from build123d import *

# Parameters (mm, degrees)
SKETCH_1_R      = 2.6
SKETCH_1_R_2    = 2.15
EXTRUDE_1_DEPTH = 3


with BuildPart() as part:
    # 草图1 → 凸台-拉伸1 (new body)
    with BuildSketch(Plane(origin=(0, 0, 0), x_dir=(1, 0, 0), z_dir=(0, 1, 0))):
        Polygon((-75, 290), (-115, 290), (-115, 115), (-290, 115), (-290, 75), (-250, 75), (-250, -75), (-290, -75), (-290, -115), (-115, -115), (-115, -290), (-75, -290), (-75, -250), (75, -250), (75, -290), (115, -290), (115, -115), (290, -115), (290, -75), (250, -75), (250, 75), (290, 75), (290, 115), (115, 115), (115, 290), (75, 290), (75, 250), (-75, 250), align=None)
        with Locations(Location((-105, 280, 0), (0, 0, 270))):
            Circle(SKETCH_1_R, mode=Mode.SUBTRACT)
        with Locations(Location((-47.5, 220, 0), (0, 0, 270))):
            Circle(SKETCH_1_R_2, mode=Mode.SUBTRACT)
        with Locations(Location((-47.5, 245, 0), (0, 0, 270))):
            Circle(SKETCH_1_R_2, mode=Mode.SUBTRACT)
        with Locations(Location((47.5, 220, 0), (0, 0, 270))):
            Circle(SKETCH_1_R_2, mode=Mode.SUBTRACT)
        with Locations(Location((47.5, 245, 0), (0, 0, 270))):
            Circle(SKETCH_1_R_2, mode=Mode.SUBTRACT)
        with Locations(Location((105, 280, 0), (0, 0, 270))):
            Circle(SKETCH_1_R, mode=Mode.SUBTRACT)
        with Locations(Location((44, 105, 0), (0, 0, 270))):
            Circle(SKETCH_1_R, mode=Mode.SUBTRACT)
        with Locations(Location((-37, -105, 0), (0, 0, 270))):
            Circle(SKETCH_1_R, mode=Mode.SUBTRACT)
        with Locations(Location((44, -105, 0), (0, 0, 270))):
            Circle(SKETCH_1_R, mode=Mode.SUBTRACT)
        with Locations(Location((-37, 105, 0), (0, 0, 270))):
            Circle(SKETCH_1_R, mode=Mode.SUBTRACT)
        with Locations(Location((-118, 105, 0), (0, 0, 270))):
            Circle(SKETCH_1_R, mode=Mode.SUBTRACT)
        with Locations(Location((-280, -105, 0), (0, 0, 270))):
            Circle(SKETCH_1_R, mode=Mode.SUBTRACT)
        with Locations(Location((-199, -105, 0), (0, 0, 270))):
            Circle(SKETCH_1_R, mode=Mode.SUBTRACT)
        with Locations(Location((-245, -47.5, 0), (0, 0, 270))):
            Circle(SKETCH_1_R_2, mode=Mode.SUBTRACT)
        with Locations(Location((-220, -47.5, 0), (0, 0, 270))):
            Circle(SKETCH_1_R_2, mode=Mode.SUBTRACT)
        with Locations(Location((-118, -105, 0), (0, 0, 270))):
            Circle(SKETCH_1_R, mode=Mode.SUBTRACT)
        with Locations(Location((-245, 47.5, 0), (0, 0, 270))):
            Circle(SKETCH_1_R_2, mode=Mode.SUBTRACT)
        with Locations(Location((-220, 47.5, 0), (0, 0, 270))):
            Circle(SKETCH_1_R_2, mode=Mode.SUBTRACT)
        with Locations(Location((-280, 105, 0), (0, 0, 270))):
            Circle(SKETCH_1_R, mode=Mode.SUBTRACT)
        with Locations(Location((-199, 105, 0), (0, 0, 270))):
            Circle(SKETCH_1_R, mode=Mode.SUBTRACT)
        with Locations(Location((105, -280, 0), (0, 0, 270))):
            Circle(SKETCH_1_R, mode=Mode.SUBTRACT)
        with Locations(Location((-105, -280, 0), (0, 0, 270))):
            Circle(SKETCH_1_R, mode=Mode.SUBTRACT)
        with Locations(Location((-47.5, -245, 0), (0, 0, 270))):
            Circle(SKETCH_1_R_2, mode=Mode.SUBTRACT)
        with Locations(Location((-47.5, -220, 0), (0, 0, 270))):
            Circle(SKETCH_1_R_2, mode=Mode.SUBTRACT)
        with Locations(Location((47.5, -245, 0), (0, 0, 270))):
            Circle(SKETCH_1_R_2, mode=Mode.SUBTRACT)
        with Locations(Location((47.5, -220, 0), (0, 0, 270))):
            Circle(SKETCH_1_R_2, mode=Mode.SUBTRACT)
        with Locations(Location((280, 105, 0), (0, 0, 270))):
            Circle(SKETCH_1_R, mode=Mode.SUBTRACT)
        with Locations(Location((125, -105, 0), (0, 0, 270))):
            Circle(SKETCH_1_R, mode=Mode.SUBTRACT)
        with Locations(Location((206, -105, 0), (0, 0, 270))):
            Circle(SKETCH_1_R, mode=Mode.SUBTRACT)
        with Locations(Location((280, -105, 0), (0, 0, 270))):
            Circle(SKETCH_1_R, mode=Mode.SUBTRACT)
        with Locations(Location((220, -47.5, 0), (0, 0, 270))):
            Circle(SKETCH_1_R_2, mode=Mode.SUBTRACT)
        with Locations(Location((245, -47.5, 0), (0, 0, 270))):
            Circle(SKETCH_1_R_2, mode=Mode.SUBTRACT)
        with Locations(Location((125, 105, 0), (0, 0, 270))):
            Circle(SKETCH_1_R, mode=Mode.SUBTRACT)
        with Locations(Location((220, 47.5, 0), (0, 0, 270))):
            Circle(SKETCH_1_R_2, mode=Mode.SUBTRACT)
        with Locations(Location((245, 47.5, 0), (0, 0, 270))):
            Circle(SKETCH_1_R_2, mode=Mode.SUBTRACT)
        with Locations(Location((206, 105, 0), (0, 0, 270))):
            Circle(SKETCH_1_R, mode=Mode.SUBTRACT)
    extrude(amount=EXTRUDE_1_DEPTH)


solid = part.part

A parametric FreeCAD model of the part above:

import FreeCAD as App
import Part
import Sketcher


def add_polygon(sketch, points):
    """Adds a closed chain of lines whose ends are joined by coincident constraints."""
    first, n = sketch.GeometryCount, len(points)
    for a, b in zip(points, points[1:] + points[:1]):
        sketch.addGeometry(Part.LineSegment(App.Vector(*a, 0), App.Vector(*b, 0)), False)
    for i in range(n):
        sketch.addConstraint(Sketcher.Constraint("Coincident", first + i, 2, first + (i + 1) % n, 1))

doc = App.newDocument("Part")
body = doc.addObject("PartDesign::Body", "Body")

# Sketch on XZ plane
sketch1 = doc.addObject("Sketcher::SketchObject", "Sketch")
body.addObject(sketch1)
sketch1.AttachmentSupport = (doc.XZ_Plane, [""])
sketch1.MapMode = "FlatFace"
add_polygon(sketch1, [(-75, -290), (-115, -290), (-115, -115), (-290, -115), (-290, -75), (-250, -75), (-250, 75), (-290, 75), (-290, 115), (-115, 115), (-115, 290), (-75, 290), (-75, 250), (75, 250), (75, 290), (115, 290), (115, 115), (290, 115), (290, 75), (250, 75), (250, -75), (290, -75), (290, -115), (115, -115), (115, -290), (75, -290), (75, -250), (-75, -250)])  # lines 0-27
sketch1.addGeometry(Part.Circle(App.Vector(-105, 280, 0), App.Vector(0, 0, 1), 2.6), False)  # 28
sketch1.addGeometry(Part.Circle(App.Vector(-47.5, 245, 0), App.Vector(0, 0, 1), 2.1), False)  # 29
sketch1.addGeometry(Part.Circle(App.Vector(-47.5, 220, 0), App.Vector(0, 0, 1), 2.1), False)  # 30
sketch1.addGeometry(Part.Circle(App.Vector(-280, 105, 0), App.Vector(0, 0, 1), 2.6), False)  # 31
sketch1.addGeometry(Part.Circle(App.Vector(-199, 105, 0), App.Vector(0, 0, 1), 2.6), False)  # 32
sketch1.addGeometry(Part.Circle(App.Vector(-245, 47.5, 0), App.Vector(0, 0, 1), 2.1), False)  # 33
sketch1.addGeometry(Part.Circle(App.Vector(-220, 47.5, 0), App.Vector(0, 0, 1), 2.1), False)  # 34
sketch1.addGeometry(Part.Circle(App.Vector(-118, 105, 0), App.Vector(0, 0, 1), 2.6), False)  # 35
sketch1.addGeometry(Part.Circle(App.Vector(-37, 105, 0), App.Vector(0, 0, 1), 2.6), False)  # 36
sketch1.addGeometry(Part.Circle(App.Vector(47.5, 245, 0), App.Vector(0, 0, 1), 2.1), False)  # 37
sketch1.addGeometry(Part.Circle(App.Vector(47.5, 220, 0), App.Vector(0, 0, 1), 2.1), False)  # 38
sketch1.addGeometry(Part.Circle(App.Vector(105, 280, 0), App.Vector(0, 0, 1), 2.6), False)  # 39
sketch1.addGeometry(Part.Circle(App.Vector(44, 105, 0), App.Vector(0, 0, 1), 2.6), False)  # 40
sketch1.addGeometry(Part.Circle(App.Vector(125, 105, 0), App.Vector(0, 0, 1), 2.6), False)  # 41
sketch1.addGeometry(Part.Circle(App.Vector(206, 105, 0), App.Vector(0, 0, 1), 2.6), False)  # 42
sketch1.addGeometry(Part.Circle(App.Vector(280, 105, 0), App.Vector(0, 0, 1), 2.6), False)  # 43
sketch1.addGeometry(Part.Circle(App.Vector(220, 47.5, 0), App.Vector(0, 0, 1), 2.1), False)  # 44
sketch1.addGeometry(Part.Circle(App.Vector(245, 47.5, 0), App.Vector(0, 0, 1), 2.1), False)  # 45
sketch1.addGeometry(Part.Circle(App.Vector(-245, -47.5, 0), App.Vector(0, 0, 1), 2.1), False)  # 46
sketch1.addGeometry(Part.Circle(App.Vector(-220, -47.5, 0), App.Vector(0, 0, 1), 2.1), False)  # 47
sketch1.addGeometry(Part.Circle(App.Vector(-280, -105, 0), App.Vector(0, 0, 1), 2.6), False)  # 48
sketch1.addGeometry(Part.Circle(App.Vector(-199, -105, 0), App.Vector(0, 0, 1), 2.6), False)  # 49
sketch1.addGeometry(Part.Circle(App.Vector(-118, -105, 0), App.Vector(0, 0, 1), 2.6), False)  # 50
sketch1.addGeometry(Part.Circle(App.Vector(-37, -105, 0), App.Vector(0, 0, 1), 2.6), False)  # 51
sketch1.addGeometry(Part.Circle(App.Vector(-105, -280, 0), App.Vector(0, 0, 1), 2.6), False)  # 52
sketch1.addGeometry(Part.Circle(App.Vector(-47.5, -220, 0), App.Vector(0, 0, 1), 2.1), False)  # 53
sketch1.addGeometry(Part.Circle(App.Vector(-47.5, -245, 0), App.Vector(0, 0, 1), 2.1), False)  # 54
sketch1.addGeometry(Part.Circle(App.Vector(44, -105, 0), App.Vector(0, 0, 1), 2.6), False)  # 55
sketch1.addGeometry(Part.Circle(App.Vector(125, -105, 0), App.Vector(0, 0, 1), 2.6), False)  # 56
sketch1.addGeometry(Part.Circle(App.Vector(220, -47.5, 0), App.Vector(0, 0, 1), 2.1), False)  # 57
sketch1.addGeometry(Part.Circle(App.Vector(245, -47.5, 0), App.Vector(0, 0, 1), 2.1), False)  # 58
sketch1.addGeometry(Part.Circle(App.Vector(206, -105, 0), App.Vector(0, 0, 1), 2.6), False)  # 59
sketch1.addGeometry(Part.Circle(App.Vector(280, -105, 0), App.Vector(0, 0, 1), 2.6), False)  # 60
sketch1.addGeometry(Part.Circle(App.Vector(47.5, -220, 0), App.Vector(0, 0, 1), 2.1), False)  # 61
sketch1.addGeometry(Part.Circle(App.Vector(47.5, -245, 0), App.Vector(0, 0, 1), 2.1), False)  # 62
sketch1.addGeometry(Part.Circle(App.Vector(105, -280, 0), App.Vector(0, 0, 1), 2.6), False)  # 63
sketch1.addConstraint(Sketcher.Constraint("Horizontal", 0))
sketch1.addConstraint(Sketcher.Constraint("Vertical", 1))
sketch1.addConstraint(Sketcher.Constraint("Horizontal", 2))
sketch1.addConstraint(Sketcher.Constraint("Vertical", 3))
sketch1.addConstraint(Sketcher.Constraint("Horizontal", 4))
sketch1.addConstraint(Sketcher.Constraint("Vertical", 5))
sketch1.addConstraint(Sketcher.Constraint("Horizontal", 6))
sketch1.addConstraint(Sketcher.Constraint("Vertical", 7))
sketch1.addConstraint(Sketcher.Constraint("Horizontal", 8))
sketch1.addConstraint(Sketcher.Constraint("Vertical", 9))
sketch1.addConstraint(Sketcher.Constraint("Horizontal", 10))
sketch1.addConstraint(Sketcher.Constraint("Vertical", 11))
sketch1.addConstraint(Sketcher.Constraint("Horizontal", 12))
sketch1.addConstraint(Sketcher.Constraint("Vertical", 13))
sketch1.addConstraint(Sketcher.Constraint("Horizontal", 14))
sketch1.addConstraint(Sketcher.Constraint("Vertical", 15))
sketch1.addConstraint(Sketcher.Constraint("Horizontal", 16))
sketch1.addConstraint(Sketcher.Constraint("Vertical", 17))
sketch1.addConstraint(Sketcher.Constraint("Horizontal", 18))
sketch1.addConstraint(Sketcher.Constraint("Vertical", 19))
sketch1.addConstraint(Sketcher.Constraint("Horizontal", 20))
sketch1.addConstraint(Sketcher.Constraint("Vertical", 21))
sketch1.addConstraint(Sketcher.Constraint("Horizontal", 22))
sketch1.addConstraint(Sketcher.Constraint("Vertical", 23))
sketch1.addConstraint(Sketcher.Constraint("Horizontal", 24))
sketch1.addConstraint(Sketcher.Constraint("Vertical", 25))
sketch1.addConstraint(Sketcher.Constraint("Horizontal", 26))
sketch1.addConstraint(Sketcher.Constraint("Vertical", 27))
sketch1.addConstraint(Sketcher.Constraint("Equal", 29, 30))
sketch1.addConstraint(Sketcher.Constraint("Equal", 28, 31))
sketch1.addConstraint(Sketcher.Constraint("Equal", 31, 32))
sketch1.addConstraint(Sketcher.Constraint("Equal", 30, 33))
sketch1.addConstraint(Sketcher.Constraint("Equal", 33, 34))
sketch1.addConstraint(Sketcher.Constraint("Equal", 32, 35))
sketch1.addConstraint(Sketcher.Constraint("Equal", 35, 36))
sketch1.addConstraint(Sketcher.Constraint("Equal", 34, 37))
sketch1.addConstraint(Sketcher.Constraint("Equal", 37, 38))
sketch1.addConstraint(Sketcher.Constraint("Equal", 36, 39))
sketch1.addConstraint(Sketcher.Constraint("Equal", 39, 40))
sketch1.addConstraint(Sketcher.Constraint("Equal", 40, 41))
sketch1.addConstraint(Sketcher.Constraint("Equal", 41, 42))
sketch1.addConstraint(Sketcher.Constraint("Equal", 42, 43))
sketch1.addConstraint(Sketcher.Constraint("Equal", 38, 44))
sketch1.addConstraint(Sketcher.Constraint("Equal", 44, 45))
sketch1.addConstraint(Sketcher.Constraint("Equal", 45, 46))
sketch1.addConstraint(Sketcher.Constraint("Equal", 46, 47))
sketch1.addConstraint(Sketcher.Constraint("Equal", 43, 48))
sketch1.addConstraint(Sketcher.Constraint("Equal", 48, 49))
sketch1.addConstraint(Sketcher.Constraint("Equal", 49, 50))
sketch1.addConstraint(Sketcher.Constraint("Equal", 50, 51))
sketch1.addConstraint(Sketcher.Constraint("Equal", 51, 52))
sketch1.addConstraint(Sketcher.Constraint("Equal", 47, 53))
sketch1.addConstraint(Sketcher.Constraint("Equal", 53, 54))
sketch1.addConstraint(Sketcher.Constraint("Equal", 52, 55))
sketch1.addConstraint(Sketcher.Constraint("Equal", 55, 56))
sketch1.addConstraint(Sketcher.Constraint("Equal", 54, 57))
sketch1.addConstraint(Sketcher.Constraint("Equal", 57, 58))
sketch1.addConstraint(Sketcher.Constraint("Equal", 56, 59))
sketch1.addConstraint(Sketcher.Constraint("Equal", 59, 60))
sketch1.addConstraint(Sketcher.Constraint("Equal", 58, 61))
sketch1.addConstraint(Sketcher.Constraint("Equal", 61, 62))
sketch1.addConstraint(Sketcher.Constraint("Equal", 60, 63))
sketch1.addConstraint(Sketcher.Constraint("Symmetric", 45, 3, 46, 3, -1, 1))
sketch1.addConstraint(Sketcher.Constraint("Symmetric", 44, 3, 47, 3, -1, 1))
sketch1.addConstraint(Sketcher.Constraint("Symmetric", 43, 3, 48, 3, -1, 1))
sketch1.addConstraint(Sketcher.Constraint("Symmetric", 39, 3, 52, 3, -1, 1))
sketch1.addConstraint(Sketcher.Constraint("Symmetric", 38, 3, 53, 3, -1, 1))
sketch1.addConstraint(Sketcher.Constraint("Symmetric", 37, 3, 54, 3, -1, 1))
sketch1.addConstraint(Sketcher.Constraint("Symmetric", 34, 3, 57, 3, -1, 1))
sketch1.addConstraint(Sketcher.Constraint("Symmetric", 33, 3, 58, 3, -1, 1))
sketch1.addConstraint(Sketcher.Constraint("Symmetric", 31, 3, 60, 3, -1, 1))
sketch1.addConstraint(Sketcher.Constraint("Symmetric", 30, 3, 61, 3, -1, 1))
sketch1.addConstraint(Sketcher.Constraint("Symmetric", 29, 3, 62, 3, -1, 1))
sketch1.addConstraint(Sketcher.Constraint("Symmetric", 28, 3, 63, 3, -1, 1))
sketch1.addConstraint(Sketcher.Constraint("Symmetric", 0, 2, 14, 2, -1, 1))
sketch1.addConstraint(Sketcher.Constraint("Symmetric", 2, 2, 16, 2, -1, 1))
sketch1.addConstraint(Sketcher.Constraint("Symmetric", 4, 2, 18, 2, -1, 1))
sketch1.addConstraint(Sketcher.Constraint("Symmetric", 6, 2, 20, 2, -1, 1))
sketch1.addConstraint(Sketcher.Constraint("Symmetric", 8, 2, 22, 2, -1, 1))
sketch1.addConstraint(Sketcher.Constraint("Symmetric", 10, 2, 24, 2, -1, 1))
sketch1.addConstraint(Sketcher.Constraint("Symmetric", 12, 2, 26, 2, -1, 1))
sketch1.addConstraint(Sketcher.Constraint("Symmetric", 29, 3, 37, 3, -2))
sketch1.addConstraint(Sketcher.Constraint("Symmetric", 30, 3, 38, 3, -2))
sketch1.addConstraint(Sketcher.Constraint("Symmetric", 28, 3, 39, 3, -2))
sketch1.addConstraint(Sketcher.Constraint("Symmetric", 31, 3, 43, 3, -2))
sketch1.addConstraint(Sketcher.Constraint("Symmetric", 34, 3, 44, 3, -2))
sketch1.addConstraint(Sketcher.Constraint("Symmetric", 33, 3, 45, 3, -2))
sketch1.addConstraint(Sketcher.Constraint("Symmetric", 10, 2, 13, 2, -2))
sketch1.addConstraint(Sketcher.Constraint("Symmetric", 8, 2, 15, 2, -2))
sketch1.addConstraint(Sketcher.Constraint("Symmetric", 6, 2, 17, 2, -2))
sketch1.addConstraint(Sketcher.Constraint("Symmetric", 32, 3, 49, 3, -1))
sketch1.addConstraint(Sketcher.Constraint("Symmetric", 35, 3, 50, 3, -1))
sketch1.addConstraint(Sketcher.Constraint("Symmetric", 36, 3, 51, 3, -1))
sketch1.addConstraint(Sketcher.Constraint("Symmetric", 40, 3, 55, 3, -1))
sketch1.addConstraint(Sketcher.Constraint("Symmetric", 41, 3, 56, 3, -1))
sketch1.addConstraint(Sketcher.Constraint("Symmetric", 42, 3, 59, 3, -1))
sketch1.addConstraint(Sketcher.Constraint("Horizontal", 31, 3, 32, 3))
sketch1.addConstraint(Sketcher.Constraint("Horizontal", 33, 3, 34, 3))
sketch1.addConstraint(Sketcher.Constraint("Horizontal", 32, 3, 35, 3))
sketch1.addConstraint(Sketcher.Constraint("Horizontal", 35, 3, 36, 3))
sketch1.addConstraint(Sketcher.Constraint("Horizontal", 36, 3, 40, 3))
sketch1.addConstraint(Sketcher.Constraint("Horizontal", 40, 3, 41, 3))
sketch1.addConstraint(Sketcher.Constraint("Horizontal", 41, 3, 42, 3))
sketch1.addConstraint(Sketcher.Constraint("Vertical", 29, 3, 30, 3))
sketch1.addConstraint(Sketcher.Constraint("Equal", 0, 4))
sketch1.addConstraint(Sketcher.Constraint("Equal", 22, 1))
sketch1.addConstraint(Sketcher.Constraint("Equal", 24, 3))
sketch1.addConstraint(Sketcher.Constraint("Equal", 26, 5))
sketch1.addConstraint(Sketcher.Constraint("Equal", 7, 11))
sketch1.addConstraint(Sketcher.Constraint("Diameter", 28, 5.2))
sketch1.addConstraint(Sketcher.Constraint("Diameter", 29, 4.3))
sketch1.addConstraint(Sketcher.Constraint("DistanceX", 0, 2, 0, 1, 40.0))
sketch1.addConstraint(Sketcher.Constraint("DistanceX", 2, 2, 2, 1, 175.0))
sketch1.addConstraint(Sketcher.Constraint("DistanceX", 12, 1, 12, 2, 150.0))
sketch1.addConstraint(Sketcher.Constraint("DistanceX", 28, 3, -1, 1, 105.0))
sketch1.addConstraint(Sketcher.Constraint("DistanceY", -1, 1, 28, 3, 280.0))
sketch1.addConstraint(Sketcher.Constraint("DistanceY", -1, 1, 29, 3, 245.0))
sketch1.addConstraint(Sketcher.Constraint("DistanceY", -1, 1, 30, 3, 220.0))
sketch1.addConstraint(Sketcher.Constraint("DistanceX", 31, 3, -1, 1, 280.0))
sketch1.addConstraint(Sketcher.Constraint("DistanceY", -1, 1, 31, 3, 105.0))
sketch1.addConstraint(Sketcher.Constraint("DistanceX", 32, 3, -1, 1, 199.0))
sketch1.addConstraint(Sketcher.Constraint("DistanceX", 33, 3, -1, 1, 245.0))
sketch1.addConstraint(Sketcher.Constraint("DistanceX", 34, 3, -1, 1, 220.0))
sketch1.addConstraint(Sketcher.Constraint("DistanceX", 35, 3, -1, 1, 118.0))
sketch1.addConstraint(Sketcher.Constraint("DistanceX", 36, 3, -1, 1, 37.0))
sketch1.addConstraint(Sketcher.Constraint("DistanceX", -1, 1, 40, 3, 44.0))
sketch1.addConstraint(Sketcher.Constraint("DistanceX", -1, 1, 41, 3, 125.0))
sketch1.addConstraint(Sketcher.Constraint("DistanceX", -1, 1, 42, 3, 206.0))
sketch1.addConstraint(Sketcher.Constraint("DistanceX", 29, 3, -1, 1, 47.5))
sketch1.addConstraint(Sketcher.Constraint("DistanceY", -1, 1, 33, 3, 47.5))
pad1 = doc.addObject("PartDesign::Pad", "Pad")
body.addObject(pad1)
pad1.Profile = sketch1
pad1.Length = 3
pad1.Reversed = True

doc.recompute()
